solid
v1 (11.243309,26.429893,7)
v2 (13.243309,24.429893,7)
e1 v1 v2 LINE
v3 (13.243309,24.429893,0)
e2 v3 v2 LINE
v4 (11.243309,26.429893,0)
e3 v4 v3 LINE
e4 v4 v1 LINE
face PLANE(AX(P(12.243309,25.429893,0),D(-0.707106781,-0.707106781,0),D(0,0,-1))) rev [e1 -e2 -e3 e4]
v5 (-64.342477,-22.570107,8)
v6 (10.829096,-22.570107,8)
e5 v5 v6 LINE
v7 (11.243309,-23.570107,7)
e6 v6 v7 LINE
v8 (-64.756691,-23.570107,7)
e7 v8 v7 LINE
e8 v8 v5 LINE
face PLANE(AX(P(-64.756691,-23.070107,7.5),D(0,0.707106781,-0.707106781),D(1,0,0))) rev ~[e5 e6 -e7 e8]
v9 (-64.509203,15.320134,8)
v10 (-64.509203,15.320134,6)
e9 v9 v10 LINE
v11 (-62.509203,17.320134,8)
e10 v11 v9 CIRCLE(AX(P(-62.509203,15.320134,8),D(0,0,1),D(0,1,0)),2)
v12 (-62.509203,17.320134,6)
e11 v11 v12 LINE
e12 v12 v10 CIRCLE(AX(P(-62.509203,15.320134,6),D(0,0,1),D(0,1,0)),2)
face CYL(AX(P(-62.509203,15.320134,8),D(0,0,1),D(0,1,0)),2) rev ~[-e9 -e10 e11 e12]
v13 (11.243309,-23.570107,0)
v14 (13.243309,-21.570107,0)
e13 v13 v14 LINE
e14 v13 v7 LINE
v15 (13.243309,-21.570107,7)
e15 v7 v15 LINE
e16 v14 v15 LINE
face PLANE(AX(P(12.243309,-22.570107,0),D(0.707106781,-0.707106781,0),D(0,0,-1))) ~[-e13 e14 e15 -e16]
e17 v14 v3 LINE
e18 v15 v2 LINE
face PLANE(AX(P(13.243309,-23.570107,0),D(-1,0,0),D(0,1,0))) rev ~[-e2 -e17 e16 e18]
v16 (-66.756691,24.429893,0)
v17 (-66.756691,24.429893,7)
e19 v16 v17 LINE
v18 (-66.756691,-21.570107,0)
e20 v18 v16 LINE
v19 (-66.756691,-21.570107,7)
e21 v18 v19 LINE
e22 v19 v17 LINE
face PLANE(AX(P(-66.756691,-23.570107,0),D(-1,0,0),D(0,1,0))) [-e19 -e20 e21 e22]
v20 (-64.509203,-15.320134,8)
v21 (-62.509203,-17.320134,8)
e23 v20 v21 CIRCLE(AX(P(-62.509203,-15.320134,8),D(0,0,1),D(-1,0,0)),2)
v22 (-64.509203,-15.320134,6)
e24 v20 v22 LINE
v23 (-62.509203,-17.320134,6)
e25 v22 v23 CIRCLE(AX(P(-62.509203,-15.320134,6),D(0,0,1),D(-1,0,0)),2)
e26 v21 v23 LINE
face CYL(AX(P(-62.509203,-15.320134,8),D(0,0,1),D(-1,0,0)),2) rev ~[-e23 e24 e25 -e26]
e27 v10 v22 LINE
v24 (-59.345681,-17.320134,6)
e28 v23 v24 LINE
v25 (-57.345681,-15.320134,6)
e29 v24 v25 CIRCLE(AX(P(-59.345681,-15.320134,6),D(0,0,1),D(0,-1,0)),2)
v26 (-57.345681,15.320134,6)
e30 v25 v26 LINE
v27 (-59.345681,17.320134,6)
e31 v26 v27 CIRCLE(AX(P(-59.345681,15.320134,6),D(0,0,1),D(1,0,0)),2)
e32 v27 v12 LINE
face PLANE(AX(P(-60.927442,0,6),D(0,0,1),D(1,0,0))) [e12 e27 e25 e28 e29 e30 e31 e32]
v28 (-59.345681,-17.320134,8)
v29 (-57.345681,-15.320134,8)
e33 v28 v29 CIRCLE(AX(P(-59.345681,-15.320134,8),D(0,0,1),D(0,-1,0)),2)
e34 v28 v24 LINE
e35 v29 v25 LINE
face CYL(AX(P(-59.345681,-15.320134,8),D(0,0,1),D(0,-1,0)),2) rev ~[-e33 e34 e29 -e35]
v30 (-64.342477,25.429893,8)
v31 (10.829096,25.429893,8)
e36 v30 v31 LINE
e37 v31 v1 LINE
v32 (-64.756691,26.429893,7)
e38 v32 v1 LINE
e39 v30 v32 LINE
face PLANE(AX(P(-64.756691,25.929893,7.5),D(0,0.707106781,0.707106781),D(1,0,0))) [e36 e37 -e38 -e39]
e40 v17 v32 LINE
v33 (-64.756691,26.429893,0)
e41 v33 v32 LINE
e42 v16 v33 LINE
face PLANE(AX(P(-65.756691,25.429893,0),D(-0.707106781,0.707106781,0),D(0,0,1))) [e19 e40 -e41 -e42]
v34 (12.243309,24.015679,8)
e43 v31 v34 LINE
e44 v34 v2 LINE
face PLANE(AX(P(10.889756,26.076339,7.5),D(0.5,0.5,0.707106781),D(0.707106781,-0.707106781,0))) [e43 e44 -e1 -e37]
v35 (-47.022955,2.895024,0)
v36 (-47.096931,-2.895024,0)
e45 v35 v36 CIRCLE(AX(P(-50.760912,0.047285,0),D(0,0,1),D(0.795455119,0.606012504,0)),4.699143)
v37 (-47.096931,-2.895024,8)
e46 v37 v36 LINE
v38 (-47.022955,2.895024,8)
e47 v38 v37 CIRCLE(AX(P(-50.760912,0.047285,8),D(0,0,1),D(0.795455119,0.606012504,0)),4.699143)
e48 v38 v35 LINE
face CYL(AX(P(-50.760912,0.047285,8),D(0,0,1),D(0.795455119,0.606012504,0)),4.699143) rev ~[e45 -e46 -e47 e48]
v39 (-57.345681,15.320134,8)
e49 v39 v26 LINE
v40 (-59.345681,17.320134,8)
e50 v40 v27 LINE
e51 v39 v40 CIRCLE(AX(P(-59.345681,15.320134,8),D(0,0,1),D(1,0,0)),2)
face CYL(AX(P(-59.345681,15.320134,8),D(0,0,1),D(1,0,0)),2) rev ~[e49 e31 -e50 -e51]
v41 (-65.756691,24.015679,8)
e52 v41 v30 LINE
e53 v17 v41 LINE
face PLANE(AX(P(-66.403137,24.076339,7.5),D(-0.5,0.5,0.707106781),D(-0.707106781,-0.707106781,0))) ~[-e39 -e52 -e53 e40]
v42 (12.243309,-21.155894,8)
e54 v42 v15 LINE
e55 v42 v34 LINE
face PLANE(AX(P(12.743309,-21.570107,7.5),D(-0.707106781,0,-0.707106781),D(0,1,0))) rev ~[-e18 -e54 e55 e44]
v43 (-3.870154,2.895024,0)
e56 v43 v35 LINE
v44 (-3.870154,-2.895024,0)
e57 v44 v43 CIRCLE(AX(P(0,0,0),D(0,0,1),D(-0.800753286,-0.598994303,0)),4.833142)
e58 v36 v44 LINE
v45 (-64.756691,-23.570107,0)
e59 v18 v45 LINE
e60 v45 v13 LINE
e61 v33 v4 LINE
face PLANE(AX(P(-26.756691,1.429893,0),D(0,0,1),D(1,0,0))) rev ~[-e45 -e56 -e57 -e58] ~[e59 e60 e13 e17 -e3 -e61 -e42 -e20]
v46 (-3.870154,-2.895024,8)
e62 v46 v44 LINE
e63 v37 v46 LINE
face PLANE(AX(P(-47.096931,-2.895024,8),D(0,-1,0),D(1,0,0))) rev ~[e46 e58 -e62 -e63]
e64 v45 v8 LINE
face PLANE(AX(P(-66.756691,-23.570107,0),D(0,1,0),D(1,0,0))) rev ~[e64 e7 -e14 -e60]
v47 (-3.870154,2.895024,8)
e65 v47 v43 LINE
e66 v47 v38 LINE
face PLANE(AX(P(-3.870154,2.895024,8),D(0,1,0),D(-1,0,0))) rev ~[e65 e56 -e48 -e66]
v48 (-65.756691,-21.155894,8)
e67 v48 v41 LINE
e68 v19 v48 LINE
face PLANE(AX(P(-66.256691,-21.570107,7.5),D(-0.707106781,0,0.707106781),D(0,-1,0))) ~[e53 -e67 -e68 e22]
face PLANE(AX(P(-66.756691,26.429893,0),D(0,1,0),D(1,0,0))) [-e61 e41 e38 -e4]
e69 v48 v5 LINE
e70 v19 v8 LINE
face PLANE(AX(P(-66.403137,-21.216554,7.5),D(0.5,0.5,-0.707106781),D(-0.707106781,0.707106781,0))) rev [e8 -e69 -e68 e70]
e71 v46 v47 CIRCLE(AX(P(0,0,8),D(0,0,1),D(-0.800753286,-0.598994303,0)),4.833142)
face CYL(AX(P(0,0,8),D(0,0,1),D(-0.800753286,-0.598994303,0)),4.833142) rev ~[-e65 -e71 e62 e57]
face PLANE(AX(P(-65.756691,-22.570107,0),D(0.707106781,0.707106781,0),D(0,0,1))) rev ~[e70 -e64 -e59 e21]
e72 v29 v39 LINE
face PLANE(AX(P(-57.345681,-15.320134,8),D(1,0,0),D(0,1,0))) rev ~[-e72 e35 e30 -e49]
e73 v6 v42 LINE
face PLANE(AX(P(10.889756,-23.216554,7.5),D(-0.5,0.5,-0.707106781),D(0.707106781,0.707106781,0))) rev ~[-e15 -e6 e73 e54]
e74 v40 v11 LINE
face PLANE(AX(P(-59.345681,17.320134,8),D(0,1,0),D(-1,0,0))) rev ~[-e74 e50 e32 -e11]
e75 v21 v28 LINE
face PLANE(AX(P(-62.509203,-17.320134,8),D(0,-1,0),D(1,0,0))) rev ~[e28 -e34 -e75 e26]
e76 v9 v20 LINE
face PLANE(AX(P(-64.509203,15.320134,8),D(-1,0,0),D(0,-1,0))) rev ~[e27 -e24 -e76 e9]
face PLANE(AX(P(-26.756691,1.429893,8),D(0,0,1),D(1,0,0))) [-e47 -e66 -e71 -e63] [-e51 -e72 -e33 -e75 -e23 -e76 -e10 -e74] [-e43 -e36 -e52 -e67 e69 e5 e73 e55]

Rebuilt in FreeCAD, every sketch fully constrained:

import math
import FreeCAD as App
import Part
import Sketcher

V = App.Vector


def edges_at(feature, points):
    """Names of the edges that pass closest to the given points."""
    edges = feature.Shape.Edges
    near = lambda p: min(range(len(edges)), key=lambda i: edges[i].distToShape(Part.Vertex(*p))[0])
    return sorted({f"Edge{near(p) + 1}" for p in points})


def add_polygon(sketch, points):
    """Adds a closed chain of lines whose ends are joined by coincident constraints."""
    first, n = sketch.GeometryCount, len(points)
    for a, b in zip(points, points[1:] + points[:1]):
        sketch.addGeometry(Part.LineSegment(App.Vector(*a, 0), App.Vector(*b, 0)), False)
    for i in range(n):
        sketch.addConstraint(Sketcher.Constraint("Coincident", first + i, 2, first + (i + 1) % n, 1))

doc = App.newDocument("Part")
body = doc.addObject("PartDesign::Body", "Body")

sketch1 = doc.addObject("Sketcher::SketchObject", "Sketch")
body.addObject(sketch1)
sketch1.AttachmentSupport = (doc.XY_Plane, [""])
sketch1.MapMode = "FlatFace"
add_polygon(sketch1, [(-67, 26), (-67, -24), (13, -24), (13, 26)])
sketch1.addConstraint([
    Sketcher.Constraint("Vertical", 0),
    Sketcher.Constraint("Horizontal", 1),
    Sketcher.Constraint("Vertical", 2),
    Sketcher.Constraint("Horizontal", 3),
    Sketcher.Constraint("DistanceX", 1, 1, 1, 2, 80.0),
    Sketcher.Constraint("DistanceY", 0, 2, 0, 1, 50.0),
    Sketcher.Constraint("DistanceX", 0, 2, -1, 1, 66.756691),
    Sketcher.Constraint("DistanceY", 0, 2, -1, 1, 23.570107),
])
pad1 = doc.addObject("PartDesign::Pad", "Pad")
body.addObject(pad1)
pad1.Profile = sketch1
pad1.Length = 8

sketch2 = doc.addObject("Sketcher::SketchObject", "Sketch001")
body.addObject(sketch2)
sketch2.AttachmentSupport = (doc.XY_Plane, [""])
sketch2.MapMode = "FlatFace"
sketch2.AttachmentOffset = App.Placement(V(0, 0, 8), App.Rotation())
sketch2.addGeometry([
    Part.ArcOfCircle(Part.Circle(V(0, 0, 0), V(0, 0, 1), 4.8), math.radians(-143), math.radians(143)),
    Part.LineSegment(V(-3.9, 2.9, 0), V(-47, 2.9, 0)),
    Part.ArcOfCircle(Part.Circle(V(-50.8, 0, 0), V(0, 0, 1), 4.7), math.radians(37), math.radians(321)),
    Part.LineSegment(V(-47.1, -2.9, 0), V(-3.9, -2.9, 0)),
], False)
sketch2.addConstraint([
    Sketcher.Constraint("Coincident", 0, 2, 1, 1),
    Sketcher.Constraint("Coincident", 1, 2, 2, 1),
    Sketcher.Constraint("Coincident", 2, 2, 3, 1),
    Sketcher.Constraint("Coincident", 3, 2, 0, 1),
    Sketcher.Constraint("Horizontal", 1),
    Sketcher.Constraint("Horizontal", 3),
    Sketcher.Constraint("Coincident", 0, 3, -1, 1),
    Sketcher.Constraint("Vertical", 0, 2, 3, 2),
    Sketcher.Constraint("Radius", 0, 4.833142),
    Sketcher.Constraint("DistanceX", 1, 2, 1, 1, 43.152801),
    Sketcher.Constraint("Radius", 2, 4.699143),
    Sketcher.Constraint("DistanceX", 3, 1, 3, 2, 43.226777),
    Sketcher.Constraint("DistanceX", 2, 2, -1, 1, 47.096931),
])
pocket1 = doc.addObject("PartDesign::Pocket", "Pocket")
body.addObject(pocket1)
pocket1.Profile = sketch2
pocket1.Length = 25.4

sketch3 = doc.addObject("Sketcher::SketchObject", "Sketch002")
body.addObject(sketch3)
sketch3.AttachmentSupport = (doc.XY_Plane, [""])
sketch3.MapMode = "FlatFace"
sketch3.AttachmentOffset = App.Placement(V(0, 0, 8), App.Rotation())
sketch3.addGeometry([
    Part.ArcOfCircle(Part.Circle(V(-59.3, 15.3, 0), V(0, 0, 1), 2), math.radians(0), math.radians(90)),
    Part.LineSegment(V(-59.3, 17.3, 0), V(-62.5, 17.3, 0)),
    Part.ArcOfCircle(Part.Circle(V(-62.5, 15.3, 0), V(0, 0, 1), 2), math.radians(90), math.radians(180)),
    Part.LineSegment(V(-64.5, 15.3, 0), V(-64.5, -15.3, 0)),
    Part.ArcOfCircle(Part.Circle(V(-62.5, -15.3, 0), V(0, 0, 1), 2), math.radians(180), math.radians(270)),
    Part.LineSegment(V(-62.5, -17.3, 0), V(-59.3, -17.3, 0)),
    Part.ArcOfCircle(Part.Circle(V(-59.3, -15.3, 0), V(0, 0, 1), 2), math.radians(-90), math.radians(0)),
    Part.LineSegment(V(-57.3, -15.3, 0), V(-57.3, 15.3, 0)),
], False)
sketch3.addConstraint([
    Sketcher.Constraint("Tangent", 0, 2, 1, 1),
    Sketcher.Constraint("Tangent", 1, 2, 2, 1),
    Sketcher.Constraint("Tangent", 2, 2, 3, 1),
    Sketcher.Constraint("Tangent", 3, 2, 4, 1),
    Sketcher.Constraint("Tangent", 4, 2, 5, 1),
    Sketcher.Constraint("Tangent", 5, 2, 6, 1),
    Sketcher.Constraint("Tangent", 6, 2, 7, 1),
    Sketcher.Constraint("Tangent", 7, 2, 0, 1),
    Sketcher.Constraint("Horizontal", 1),
    Sketcher.Constraint("Vertical", 3),
    Sketcher.Constraint("Horizontal", 5),
    Sketcher.Constraint("Vertical", 7),
    Sketcher.Constraint("Equal", 0, 2),
    Sketcher.Constraint("Equal", 2, 4),
    Sketcher.Constraint("Equal", 4, 6),
    Sketcher.Constraint("Radius", 0, 2.0),
    Sketcher.Constraint("DistanceX", 1, 2, 1, 1, 3.163522),
    Sketcher.Constraint("DistanceY", 3, 2, 3, 1, 30.640267),
    Sketcher.Constraint("DistanceX", 0, 3, -1, 1, 59.345681),
    Sketcher.Constraint("DistanceY", -1, 1, 0, 3, 15.320134),
])
pocket2 = doc.addObject("PartDesign::Pocket", "Pocket001")
body.addObject(pocket2)
pocket2.Profile = sketch3
pocket2.Length = 2
doc.recompute()

chamfer = doc.addObject("PartDesign::Chamfer", "Chamfer")
body.addObject(chamfer)
chamfer.Base = (pocket2, edges_at(pocket2, [
    (13.243, 26.43, 4),
    (13.243, -23.57, 4),
    (-66.757, -23.57, 4),
    (-66.757, 26.43, 4),
]))
chamfer.Size = 2
doc.recompute()

chamfer2 = doc.addObject("PartDesign::Chamfer", "Chamfer001")
body.addObject(chamfer2)
chamfer2.Base = (chamfer, edges_at(chamfer, [
    (-66.757, 1.43, 8),
    (-26.757, 26.43, 8),
    (-65.757, 25.43, 8),
    (-65.757, -22.57, 8),
    (13.243, 1.43, 8),
    (12.243, 25.43, 8),
    (12.243, -22.57, 8),
    (-26.757, -23.57, 8),
]))
chamfer2.Size = 1

doc.recompute()
